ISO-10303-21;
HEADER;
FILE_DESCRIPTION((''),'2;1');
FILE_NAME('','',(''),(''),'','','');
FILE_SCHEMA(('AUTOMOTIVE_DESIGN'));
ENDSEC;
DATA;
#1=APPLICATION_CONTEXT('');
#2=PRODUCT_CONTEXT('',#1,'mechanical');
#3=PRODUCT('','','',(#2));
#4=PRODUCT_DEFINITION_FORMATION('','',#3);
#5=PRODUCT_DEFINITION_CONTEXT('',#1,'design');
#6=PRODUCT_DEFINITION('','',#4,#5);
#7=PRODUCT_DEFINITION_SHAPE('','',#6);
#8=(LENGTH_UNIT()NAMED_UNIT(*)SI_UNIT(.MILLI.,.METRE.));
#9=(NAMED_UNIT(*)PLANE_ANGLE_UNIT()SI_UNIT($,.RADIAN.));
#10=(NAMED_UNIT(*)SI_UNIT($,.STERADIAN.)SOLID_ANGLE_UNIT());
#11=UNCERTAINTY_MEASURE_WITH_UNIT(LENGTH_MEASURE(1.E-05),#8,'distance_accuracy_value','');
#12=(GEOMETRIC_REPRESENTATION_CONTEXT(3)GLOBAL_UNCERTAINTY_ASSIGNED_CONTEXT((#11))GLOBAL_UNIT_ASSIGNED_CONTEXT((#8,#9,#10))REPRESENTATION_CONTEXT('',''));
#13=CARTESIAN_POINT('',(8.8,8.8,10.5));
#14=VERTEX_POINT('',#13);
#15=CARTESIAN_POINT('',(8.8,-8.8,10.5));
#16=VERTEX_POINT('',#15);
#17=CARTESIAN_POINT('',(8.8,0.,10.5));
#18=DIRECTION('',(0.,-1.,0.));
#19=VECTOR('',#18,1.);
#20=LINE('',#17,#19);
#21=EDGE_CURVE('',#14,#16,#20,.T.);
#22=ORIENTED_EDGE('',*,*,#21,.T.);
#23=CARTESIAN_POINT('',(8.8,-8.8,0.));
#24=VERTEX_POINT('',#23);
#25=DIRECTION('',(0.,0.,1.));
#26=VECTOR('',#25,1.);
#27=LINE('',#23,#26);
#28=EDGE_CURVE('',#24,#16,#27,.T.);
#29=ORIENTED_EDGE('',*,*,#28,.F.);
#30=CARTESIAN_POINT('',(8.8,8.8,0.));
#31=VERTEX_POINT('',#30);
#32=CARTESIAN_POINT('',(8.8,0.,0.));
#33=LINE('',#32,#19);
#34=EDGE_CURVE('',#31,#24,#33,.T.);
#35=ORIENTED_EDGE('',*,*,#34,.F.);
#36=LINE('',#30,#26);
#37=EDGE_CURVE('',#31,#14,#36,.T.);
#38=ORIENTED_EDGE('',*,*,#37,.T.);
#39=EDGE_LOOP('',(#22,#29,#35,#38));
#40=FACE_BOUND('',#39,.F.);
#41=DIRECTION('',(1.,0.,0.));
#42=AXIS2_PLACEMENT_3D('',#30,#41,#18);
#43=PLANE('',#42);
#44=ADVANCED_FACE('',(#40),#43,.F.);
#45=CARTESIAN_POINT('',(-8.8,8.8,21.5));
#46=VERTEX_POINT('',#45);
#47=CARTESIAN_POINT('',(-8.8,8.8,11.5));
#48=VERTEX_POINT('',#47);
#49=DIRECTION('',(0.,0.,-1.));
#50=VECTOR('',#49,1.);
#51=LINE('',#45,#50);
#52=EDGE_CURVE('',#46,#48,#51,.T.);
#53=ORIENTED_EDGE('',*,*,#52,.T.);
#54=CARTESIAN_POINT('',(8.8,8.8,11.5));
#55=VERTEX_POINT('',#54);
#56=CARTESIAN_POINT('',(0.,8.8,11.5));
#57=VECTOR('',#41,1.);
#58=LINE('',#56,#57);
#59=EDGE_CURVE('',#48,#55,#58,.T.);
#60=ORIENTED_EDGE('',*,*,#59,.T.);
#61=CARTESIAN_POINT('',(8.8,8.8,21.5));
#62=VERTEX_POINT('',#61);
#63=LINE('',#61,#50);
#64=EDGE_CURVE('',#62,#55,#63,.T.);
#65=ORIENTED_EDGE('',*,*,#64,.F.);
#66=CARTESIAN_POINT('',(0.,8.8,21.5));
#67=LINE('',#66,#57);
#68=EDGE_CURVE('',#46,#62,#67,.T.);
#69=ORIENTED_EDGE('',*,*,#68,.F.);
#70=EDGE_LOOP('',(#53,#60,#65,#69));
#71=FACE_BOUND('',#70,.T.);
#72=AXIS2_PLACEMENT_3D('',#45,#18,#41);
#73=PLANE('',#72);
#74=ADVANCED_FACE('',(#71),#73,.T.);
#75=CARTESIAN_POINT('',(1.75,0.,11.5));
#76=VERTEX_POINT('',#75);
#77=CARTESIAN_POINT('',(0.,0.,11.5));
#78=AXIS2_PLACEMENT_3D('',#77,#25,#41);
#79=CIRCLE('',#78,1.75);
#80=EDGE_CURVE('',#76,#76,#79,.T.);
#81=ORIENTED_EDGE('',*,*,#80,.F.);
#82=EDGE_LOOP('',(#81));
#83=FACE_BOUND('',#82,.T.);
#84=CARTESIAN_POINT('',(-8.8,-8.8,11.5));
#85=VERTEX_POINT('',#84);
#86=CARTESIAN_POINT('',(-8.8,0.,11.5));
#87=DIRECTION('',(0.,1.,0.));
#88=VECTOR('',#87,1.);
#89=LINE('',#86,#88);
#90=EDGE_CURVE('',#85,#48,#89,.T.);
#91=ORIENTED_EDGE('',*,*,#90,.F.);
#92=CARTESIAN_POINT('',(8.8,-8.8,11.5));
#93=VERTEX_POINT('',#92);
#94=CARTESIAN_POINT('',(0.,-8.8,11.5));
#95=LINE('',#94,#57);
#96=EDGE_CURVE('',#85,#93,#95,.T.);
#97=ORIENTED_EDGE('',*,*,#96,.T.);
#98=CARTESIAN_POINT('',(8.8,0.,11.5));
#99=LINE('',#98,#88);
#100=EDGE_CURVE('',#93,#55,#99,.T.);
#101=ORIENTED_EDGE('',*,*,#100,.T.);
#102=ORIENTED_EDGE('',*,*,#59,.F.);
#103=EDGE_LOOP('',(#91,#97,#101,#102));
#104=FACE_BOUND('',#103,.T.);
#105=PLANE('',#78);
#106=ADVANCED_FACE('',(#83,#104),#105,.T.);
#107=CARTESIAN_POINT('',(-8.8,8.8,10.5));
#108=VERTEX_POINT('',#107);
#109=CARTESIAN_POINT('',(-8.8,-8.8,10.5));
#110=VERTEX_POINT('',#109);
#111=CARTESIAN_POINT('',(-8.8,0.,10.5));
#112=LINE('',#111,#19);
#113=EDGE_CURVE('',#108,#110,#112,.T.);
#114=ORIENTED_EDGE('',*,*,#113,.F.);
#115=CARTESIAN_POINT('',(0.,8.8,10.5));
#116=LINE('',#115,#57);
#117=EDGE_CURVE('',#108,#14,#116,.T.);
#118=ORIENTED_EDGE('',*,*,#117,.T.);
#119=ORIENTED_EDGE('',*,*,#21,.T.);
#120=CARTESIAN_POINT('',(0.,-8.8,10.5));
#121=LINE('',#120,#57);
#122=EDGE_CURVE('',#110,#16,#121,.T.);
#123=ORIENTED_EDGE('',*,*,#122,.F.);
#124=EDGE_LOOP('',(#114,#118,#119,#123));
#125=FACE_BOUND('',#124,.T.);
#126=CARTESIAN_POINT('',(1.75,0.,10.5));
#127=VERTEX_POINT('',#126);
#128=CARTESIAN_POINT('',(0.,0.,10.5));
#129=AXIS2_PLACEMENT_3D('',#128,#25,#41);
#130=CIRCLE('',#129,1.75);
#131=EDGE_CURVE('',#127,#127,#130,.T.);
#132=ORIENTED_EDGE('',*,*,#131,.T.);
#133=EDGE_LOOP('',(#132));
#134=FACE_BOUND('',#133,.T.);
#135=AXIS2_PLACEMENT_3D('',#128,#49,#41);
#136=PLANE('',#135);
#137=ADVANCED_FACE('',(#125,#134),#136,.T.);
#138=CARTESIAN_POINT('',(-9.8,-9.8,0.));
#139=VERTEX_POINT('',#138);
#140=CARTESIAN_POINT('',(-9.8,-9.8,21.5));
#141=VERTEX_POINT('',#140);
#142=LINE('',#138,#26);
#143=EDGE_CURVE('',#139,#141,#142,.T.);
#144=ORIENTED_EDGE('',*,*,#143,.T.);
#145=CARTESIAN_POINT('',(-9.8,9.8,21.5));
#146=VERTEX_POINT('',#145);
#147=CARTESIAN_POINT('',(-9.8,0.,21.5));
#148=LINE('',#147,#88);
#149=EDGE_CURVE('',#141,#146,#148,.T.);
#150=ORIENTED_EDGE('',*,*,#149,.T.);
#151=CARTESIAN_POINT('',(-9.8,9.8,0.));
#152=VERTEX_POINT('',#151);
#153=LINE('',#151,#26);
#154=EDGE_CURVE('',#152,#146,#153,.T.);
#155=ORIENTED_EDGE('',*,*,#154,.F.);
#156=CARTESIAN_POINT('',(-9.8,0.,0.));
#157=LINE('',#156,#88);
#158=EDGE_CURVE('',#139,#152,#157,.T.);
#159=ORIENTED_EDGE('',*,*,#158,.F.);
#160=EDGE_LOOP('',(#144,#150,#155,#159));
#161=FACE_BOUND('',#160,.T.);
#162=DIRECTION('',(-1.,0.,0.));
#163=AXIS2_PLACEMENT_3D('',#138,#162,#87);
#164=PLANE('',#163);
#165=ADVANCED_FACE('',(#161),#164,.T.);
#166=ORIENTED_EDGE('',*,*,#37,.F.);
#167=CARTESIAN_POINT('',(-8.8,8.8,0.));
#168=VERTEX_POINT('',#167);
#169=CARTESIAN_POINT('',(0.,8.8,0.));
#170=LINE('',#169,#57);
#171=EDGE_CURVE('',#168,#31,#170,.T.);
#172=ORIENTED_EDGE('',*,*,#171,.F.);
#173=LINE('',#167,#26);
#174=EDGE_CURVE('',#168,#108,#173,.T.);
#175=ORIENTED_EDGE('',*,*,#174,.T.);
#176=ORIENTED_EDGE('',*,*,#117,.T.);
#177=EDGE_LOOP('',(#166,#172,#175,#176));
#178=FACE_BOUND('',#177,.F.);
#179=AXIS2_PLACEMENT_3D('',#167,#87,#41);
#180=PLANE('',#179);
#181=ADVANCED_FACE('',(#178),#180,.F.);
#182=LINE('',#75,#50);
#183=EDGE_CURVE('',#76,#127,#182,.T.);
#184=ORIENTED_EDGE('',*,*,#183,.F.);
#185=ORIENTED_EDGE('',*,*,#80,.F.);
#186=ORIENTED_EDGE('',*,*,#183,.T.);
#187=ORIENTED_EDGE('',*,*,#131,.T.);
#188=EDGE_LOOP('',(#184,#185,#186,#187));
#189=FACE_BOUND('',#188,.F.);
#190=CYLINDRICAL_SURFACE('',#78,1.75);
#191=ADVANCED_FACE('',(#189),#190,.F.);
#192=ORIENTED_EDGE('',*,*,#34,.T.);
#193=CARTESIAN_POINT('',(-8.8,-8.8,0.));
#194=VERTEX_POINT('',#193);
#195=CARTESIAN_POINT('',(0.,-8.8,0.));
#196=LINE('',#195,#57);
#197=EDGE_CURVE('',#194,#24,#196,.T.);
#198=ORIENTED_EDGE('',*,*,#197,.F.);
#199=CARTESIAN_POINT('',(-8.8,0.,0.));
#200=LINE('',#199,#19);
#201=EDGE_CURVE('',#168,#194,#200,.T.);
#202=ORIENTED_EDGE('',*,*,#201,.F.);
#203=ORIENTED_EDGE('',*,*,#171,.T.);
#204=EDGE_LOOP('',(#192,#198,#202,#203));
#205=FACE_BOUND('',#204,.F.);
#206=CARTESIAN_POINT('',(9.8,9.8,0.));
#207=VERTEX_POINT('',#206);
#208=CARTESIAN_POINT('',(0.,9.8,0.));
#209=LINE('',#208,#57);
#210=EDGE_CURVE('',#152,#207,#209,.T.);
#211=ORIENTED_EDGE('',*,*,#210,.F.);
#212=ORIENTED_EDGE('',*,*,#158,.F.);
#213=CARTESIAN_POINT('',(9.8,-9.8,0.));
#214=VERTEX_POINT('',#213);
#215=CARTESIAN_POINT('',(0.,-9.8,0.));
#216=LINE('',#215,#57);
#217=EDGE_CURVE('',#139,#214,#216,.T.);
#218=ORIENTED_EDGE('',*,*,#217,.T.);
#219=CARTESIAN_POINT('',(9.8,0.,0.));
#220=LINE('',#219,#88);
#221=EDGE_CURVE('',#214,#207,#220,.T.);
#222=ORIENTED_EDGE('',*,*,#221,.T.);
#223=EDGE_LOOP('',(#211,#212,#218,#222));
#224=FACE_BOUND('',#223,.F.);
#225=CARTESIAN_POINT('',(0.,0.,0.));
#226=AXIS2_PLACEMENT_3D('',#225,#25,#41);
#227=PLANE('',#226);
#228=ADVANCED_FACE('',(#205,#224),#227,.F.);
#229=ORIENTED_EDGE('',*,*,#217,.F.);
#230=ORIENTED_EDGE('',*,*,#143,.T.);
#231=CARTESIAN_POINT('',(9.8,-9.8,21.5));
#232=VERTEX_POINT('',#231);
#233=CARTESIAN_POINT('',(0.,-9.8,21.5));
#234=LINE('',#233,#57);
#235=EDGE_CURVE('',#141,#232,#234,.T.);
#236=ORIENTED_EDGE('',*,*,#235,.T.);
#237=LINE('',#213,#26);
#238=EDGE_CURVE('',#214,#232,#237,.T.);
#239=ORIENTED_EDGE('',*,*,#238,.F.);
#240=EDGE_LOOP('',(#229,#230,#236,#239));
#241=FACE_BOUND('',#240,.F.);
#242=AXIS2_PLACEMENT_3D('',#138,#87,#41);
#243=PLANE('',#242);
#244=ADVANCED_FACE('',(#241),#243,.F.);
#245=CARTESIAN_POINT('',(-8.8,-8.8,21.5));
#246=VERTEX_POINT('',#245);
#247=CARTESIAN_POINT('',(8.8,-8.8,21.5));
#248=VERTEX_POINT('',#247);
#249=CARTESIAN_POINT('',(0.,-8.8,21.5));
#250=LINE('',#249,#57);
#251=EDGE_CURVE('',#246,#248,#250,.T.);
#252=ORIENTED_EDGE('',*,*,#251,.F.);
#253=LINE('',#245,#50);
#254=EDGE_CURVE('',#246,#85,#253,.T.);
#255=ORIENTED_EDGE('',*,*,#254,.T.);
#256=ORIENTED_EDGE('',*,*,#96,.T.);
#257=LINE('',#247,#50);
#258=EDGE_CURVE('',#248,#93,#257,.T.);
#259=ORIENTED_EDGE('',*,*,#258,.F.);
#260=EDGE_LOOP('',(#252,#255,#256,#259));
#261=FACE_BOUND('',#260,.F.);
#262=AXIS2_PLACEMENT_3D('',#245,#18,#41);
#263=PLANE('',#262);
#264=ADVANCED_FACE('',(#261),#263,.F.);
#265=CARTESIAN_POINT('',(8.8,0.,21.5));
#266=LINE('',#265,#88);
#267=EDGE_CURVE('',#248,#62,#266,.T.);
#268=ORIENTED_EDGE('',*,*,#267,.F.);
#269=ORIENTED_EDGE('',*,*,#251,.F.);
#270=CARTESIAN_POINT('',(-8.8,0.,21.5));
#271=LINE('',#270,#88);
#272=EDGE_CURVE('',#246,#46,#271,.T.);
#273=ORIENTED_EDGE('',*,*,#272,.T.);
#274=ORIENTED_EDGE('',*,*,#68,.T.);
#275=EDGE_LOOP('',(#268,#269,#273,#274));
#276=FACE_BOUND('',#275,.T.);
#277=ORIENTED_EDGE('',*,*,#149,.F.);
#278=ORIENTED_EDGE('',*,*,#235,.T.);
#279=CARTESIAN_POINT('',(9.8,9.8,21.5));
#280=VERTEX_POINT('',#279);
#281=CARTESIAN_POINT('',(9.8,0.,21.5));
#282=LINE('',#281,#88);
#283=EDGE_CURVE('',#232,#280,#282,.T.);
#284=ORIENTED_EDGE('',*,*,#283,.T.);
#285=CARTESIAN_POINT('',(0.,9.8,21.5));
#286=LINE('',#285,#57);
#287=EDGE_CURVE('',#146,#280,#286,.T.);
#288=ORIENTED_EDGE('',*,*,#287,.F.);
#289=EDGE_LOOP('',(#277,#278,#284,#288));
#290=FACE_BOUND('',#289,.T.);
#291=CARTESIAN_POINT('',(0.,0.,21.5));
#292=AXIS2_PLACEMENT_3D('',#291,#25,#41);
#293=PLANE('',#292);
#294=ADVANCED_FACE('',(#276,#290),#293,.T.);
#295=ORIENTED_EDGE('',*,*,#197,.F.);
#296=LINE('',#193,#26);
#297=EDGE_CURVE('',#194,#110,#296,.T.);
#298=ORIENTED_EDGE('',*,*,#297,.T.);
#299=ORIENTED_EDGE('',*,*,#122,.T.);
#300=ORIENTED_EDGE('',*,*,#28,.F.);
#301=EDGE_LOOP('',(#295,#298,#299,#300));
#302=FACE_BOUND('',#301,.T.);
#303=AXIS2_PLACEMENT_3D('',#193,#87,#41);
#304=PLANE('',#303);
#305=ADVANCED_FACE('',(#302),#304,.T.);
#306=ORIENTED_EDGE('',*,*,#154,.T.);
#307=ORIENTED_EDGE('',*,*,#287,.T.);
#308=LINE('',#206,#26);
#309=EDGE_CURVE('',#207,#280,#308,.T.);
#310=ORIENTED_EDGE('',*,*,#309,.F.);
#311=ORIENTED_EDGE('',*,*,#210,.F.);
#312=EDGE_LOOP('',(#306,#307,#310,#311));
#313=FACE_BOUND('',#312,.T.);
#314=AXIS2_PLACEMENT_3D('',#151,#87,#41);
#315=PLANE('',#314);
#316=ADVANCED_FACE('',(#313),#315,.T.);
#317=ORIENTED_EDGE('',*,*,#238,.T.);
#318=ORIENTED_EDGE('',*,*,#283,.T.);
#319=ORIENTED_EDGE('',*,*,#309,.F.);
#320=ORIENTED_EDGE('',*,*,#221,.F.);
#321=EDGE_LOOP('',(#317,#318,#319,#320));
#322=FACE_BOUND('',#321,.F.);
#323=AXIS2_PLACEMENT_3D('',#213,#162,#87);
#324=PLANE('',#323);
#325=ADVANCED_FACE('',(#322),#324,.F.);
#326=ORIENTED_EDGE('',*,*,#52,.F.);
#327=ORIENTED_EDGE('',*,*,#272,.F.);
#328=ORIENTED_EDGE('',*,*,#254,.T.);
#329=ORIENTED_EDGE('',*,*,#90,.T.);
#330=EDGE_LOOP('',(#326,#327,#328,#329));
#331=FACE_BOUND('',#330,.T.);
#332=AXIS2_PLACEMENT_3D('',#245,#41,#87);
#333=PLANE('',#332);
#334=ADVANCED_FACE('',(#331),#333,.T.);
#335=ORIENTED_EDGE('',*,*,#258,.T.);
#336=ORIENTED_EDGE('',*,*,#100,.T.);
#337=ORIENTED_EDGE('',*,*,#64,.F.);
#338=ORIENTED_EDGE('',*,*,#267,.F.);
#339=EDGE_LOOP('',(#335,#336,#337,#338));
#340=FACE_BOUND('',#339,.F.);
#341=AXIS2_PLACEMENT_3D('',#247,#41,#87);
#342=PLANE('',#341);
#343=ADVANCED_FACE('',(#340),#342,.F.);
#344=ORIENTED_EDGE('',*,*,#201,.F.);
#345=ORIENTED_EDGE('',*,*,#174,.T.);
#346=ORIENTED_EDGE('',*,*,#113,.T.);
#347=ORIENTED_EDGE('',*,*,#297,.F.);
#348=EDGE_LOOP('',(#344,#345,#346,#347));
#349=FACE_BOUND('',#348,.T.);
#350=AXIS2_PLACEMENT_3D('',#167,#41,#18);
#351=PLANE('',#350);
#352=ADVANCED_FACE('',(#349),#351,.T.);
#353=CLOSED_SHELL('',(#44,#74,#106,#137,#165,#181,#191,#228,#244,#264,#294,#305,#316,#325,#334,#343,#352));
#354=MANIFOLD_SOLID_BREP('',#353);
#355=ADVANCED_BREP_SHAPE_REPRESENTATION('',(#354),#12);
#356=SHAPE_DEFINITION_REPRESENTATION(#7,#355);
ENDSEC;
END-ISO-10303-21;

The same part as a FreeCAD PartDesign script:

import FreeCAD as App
import Part
import Sketcher
from FreeCAD import Vector

doc = App.newDocument("Part")
body = doc.addObject("PartDesign::Body", "Body")

# Sketch on XY plane
sketch1 = body.newObject("Sketcher::SketchObject", "Sketch")
sketch1.AttachmentSupport = (doc.getObject("XY_Plane"), [""])
sketch1.MapMode = "FlatFace"
sketch1.addGeometry([
    Part.LineSegment(Vector(-9.8, 9.8, 0), Vector(-9.8, -9.8, 0)),
    Part.LineSegment(Vector(-9.8, -9.8, 0), Vector(9.8, -9.8, 0)),
    Part.LineSegment(Vector(9.8, -9.8, 0), Vector(9.8, 9.8, 0)),
    Part.LineSegment(Vector(9.8, 9.8, 0), Vector(-9.8, 9.8, 0)),
], False)
sketch1.addConstraint([
    Sketcher.Constraint("Coincident", 0, 2, 1, 1),
    Sketcher.Constraint("Coincident", 1, 2, 2, 1),
    Sketcher.Constraint("Coincident", 2, 2, 3, 1),
    Sketcher.Constraint("Coincident", 3, 2, 0, 1),
    Sketcher.Constraint("Vertical", 0),
    Sketcher.Constraint("Horizontal", 1),
    Sketcher.Constraint("Vertical", 2),
    Sketcher.Constraint("Horizontal", 3),
    Sketcher.Constraint("Symmetric", 0, 2, 2, 2, -1, 1),
    Sketcher.Constraint("Equal", 3, 0),
    Sketcher.Constraint("DistanceX", 1, 1, 1, 2, 19.6),
])
pad1 = body.newObject("PartDesign::Pad", "Pad")
pad1.Profile = sketch1
pad1.Length = 21.5

# Sketch on XY plane
sketch2 = body.newObject("Sketcher::SketchObject", "Sketch001")
sketch2.AttachmentSupport = (doc.getObject("XY_Plane"), [""])
sketch2.MapMode = "FlatFace"
sketch2.addGeometry([
    Part.LineSegment(Vector(-8.8, -8.8, 0), Vector(-8.8, 8.8, 0)),
    Part.LineSegment(Vector(-8.8, 8.8, 0), Vector(8.8, 8.8, 0)),
    Part.LineSegment(Vector(8.8, 8.8, 0), Vector(8.8, -8.8, 0)),
    Part.LineSegment(Vector(8.8, -8.8, 0), Vector(-8.8, -8.8, 0)),
], False)
sketch2.addConstraint([
    Sketcher.Constraint("Coincident", 0, 2, 1, 1),
    Sketcher.Constraint("Coincident", 1, 2, 2, 1),
    Sketcher.Constraint("Coincident", 2, 2, 3, 1),
    Sketcher.Constraint("Coincident", 3, 2, 0, 1),
    Sketcher.Constraint("Vertical", 0),
    Sketcher.Constraint("Horizontal", 1),
    Sketcher.Constraint("Vertical", 2),
    Sketcher.Constraint("Horizontal", 3),
    Sketcher.Constraint("Symmetric", 0, 2, 2, 2, -1, 1),
    Sketcher.Constraint("Equal", 3, 0),
    Sketcher.Constraint("DistanceX", 1, 1, 1, 2, 17.6),
])
pocket1 = body.newObject("PartDesign::Pocket", "Pocket")
pocket1.Profile = sketch2
pocket1.Length = 10.5
pocket1.Reversed = True

# Sketch on XY plane
sketch3 = body.newObject("Sketcher::SketchObject", "Sketch002")
sketch3.AttachmentSupport = (doc.getObject("XY_Plane"), [""])
sketch3.MapMode = "FlatFace"
sketch3.AttachmentOffset = App.Placement(Vector(0, 0, 21.5), App.Rotation())
sketch3.addGeometry([
    Part.LineSegment(Vector(-8.8, 8.8, 0), Vector(-8.8, -8.8, 0)),
    Part.LineSegment(Vector(-8.8, -8.8, 0), Vector(8.8, -8.8, 0)),
    Part.LineSegment(Vector(8.8, -8.8, 0), Vector(8.8, 8.8, 0)),
    Part.LineSegment(Vector(8.8, 8.8, 0), Vector(-8.8, 8.8, 0)),
], False)
sketch3.addConstraint([
    Sketcher.Constraint("Coincident", 0, 2, 1, 1),
    Sketcher.Constraint("Coincident", 1, 2, 2, 1),
    Sketcher.Constraint("Coincident", 2, 2, 3, 1),
    Sketcher.Constraint("Coincident", 3, 2, 0, 1),
    Sketcher.Constraint("Vertical", 0),
    Sketcher.Constraint("Horizontal", 1),
    Sketcher.Constraint("Vertical", 2),
    Sketcher.Constraint("Horizontal", 3),
    Sketcher.Constraint("Symmetric", 0, 2, 2, 2, -1, 1),
    Sketcher.Constraint("Equal", 3, 0),
    Sketcher.Constraint("DistanceX", 1, 1, 1, 2, 17.6),
])
pocket2 = body.newObject("PartDesign::Pocket", "Pocket001")
pocket2.Profile = sketch3
pocket2.Length = 10

# Sketch on XY plane
sketch4 = body.newObject("Sketcher::SketchObject", "Sketch003")
sketch4.AttachmentSupport = (doc.getObject("XY_Plane"), [""])
sketch4.MapMode = "FlatFace"
sketch4.AttachmentOffset = App.Placement(Vector(0, 0, 11.5), App.Rotation())
sketch4.addGeometry(Part.Circle(Vector(0, 0, 0), Vector(0, 0, 1), 1.75), False)
sketch4.addConstraint([
    Sketcher.Constraint("Coincident", 0, 3, -1, 1),
    Sketcher.Constraint("Diameter", 0, 3.5),
])
pocket3 = body.newObject("PartDesign::Pocket", "Pocket002")
pocket3.Profile = sketch4
pocket3.Length = 1

doc.recompute()
